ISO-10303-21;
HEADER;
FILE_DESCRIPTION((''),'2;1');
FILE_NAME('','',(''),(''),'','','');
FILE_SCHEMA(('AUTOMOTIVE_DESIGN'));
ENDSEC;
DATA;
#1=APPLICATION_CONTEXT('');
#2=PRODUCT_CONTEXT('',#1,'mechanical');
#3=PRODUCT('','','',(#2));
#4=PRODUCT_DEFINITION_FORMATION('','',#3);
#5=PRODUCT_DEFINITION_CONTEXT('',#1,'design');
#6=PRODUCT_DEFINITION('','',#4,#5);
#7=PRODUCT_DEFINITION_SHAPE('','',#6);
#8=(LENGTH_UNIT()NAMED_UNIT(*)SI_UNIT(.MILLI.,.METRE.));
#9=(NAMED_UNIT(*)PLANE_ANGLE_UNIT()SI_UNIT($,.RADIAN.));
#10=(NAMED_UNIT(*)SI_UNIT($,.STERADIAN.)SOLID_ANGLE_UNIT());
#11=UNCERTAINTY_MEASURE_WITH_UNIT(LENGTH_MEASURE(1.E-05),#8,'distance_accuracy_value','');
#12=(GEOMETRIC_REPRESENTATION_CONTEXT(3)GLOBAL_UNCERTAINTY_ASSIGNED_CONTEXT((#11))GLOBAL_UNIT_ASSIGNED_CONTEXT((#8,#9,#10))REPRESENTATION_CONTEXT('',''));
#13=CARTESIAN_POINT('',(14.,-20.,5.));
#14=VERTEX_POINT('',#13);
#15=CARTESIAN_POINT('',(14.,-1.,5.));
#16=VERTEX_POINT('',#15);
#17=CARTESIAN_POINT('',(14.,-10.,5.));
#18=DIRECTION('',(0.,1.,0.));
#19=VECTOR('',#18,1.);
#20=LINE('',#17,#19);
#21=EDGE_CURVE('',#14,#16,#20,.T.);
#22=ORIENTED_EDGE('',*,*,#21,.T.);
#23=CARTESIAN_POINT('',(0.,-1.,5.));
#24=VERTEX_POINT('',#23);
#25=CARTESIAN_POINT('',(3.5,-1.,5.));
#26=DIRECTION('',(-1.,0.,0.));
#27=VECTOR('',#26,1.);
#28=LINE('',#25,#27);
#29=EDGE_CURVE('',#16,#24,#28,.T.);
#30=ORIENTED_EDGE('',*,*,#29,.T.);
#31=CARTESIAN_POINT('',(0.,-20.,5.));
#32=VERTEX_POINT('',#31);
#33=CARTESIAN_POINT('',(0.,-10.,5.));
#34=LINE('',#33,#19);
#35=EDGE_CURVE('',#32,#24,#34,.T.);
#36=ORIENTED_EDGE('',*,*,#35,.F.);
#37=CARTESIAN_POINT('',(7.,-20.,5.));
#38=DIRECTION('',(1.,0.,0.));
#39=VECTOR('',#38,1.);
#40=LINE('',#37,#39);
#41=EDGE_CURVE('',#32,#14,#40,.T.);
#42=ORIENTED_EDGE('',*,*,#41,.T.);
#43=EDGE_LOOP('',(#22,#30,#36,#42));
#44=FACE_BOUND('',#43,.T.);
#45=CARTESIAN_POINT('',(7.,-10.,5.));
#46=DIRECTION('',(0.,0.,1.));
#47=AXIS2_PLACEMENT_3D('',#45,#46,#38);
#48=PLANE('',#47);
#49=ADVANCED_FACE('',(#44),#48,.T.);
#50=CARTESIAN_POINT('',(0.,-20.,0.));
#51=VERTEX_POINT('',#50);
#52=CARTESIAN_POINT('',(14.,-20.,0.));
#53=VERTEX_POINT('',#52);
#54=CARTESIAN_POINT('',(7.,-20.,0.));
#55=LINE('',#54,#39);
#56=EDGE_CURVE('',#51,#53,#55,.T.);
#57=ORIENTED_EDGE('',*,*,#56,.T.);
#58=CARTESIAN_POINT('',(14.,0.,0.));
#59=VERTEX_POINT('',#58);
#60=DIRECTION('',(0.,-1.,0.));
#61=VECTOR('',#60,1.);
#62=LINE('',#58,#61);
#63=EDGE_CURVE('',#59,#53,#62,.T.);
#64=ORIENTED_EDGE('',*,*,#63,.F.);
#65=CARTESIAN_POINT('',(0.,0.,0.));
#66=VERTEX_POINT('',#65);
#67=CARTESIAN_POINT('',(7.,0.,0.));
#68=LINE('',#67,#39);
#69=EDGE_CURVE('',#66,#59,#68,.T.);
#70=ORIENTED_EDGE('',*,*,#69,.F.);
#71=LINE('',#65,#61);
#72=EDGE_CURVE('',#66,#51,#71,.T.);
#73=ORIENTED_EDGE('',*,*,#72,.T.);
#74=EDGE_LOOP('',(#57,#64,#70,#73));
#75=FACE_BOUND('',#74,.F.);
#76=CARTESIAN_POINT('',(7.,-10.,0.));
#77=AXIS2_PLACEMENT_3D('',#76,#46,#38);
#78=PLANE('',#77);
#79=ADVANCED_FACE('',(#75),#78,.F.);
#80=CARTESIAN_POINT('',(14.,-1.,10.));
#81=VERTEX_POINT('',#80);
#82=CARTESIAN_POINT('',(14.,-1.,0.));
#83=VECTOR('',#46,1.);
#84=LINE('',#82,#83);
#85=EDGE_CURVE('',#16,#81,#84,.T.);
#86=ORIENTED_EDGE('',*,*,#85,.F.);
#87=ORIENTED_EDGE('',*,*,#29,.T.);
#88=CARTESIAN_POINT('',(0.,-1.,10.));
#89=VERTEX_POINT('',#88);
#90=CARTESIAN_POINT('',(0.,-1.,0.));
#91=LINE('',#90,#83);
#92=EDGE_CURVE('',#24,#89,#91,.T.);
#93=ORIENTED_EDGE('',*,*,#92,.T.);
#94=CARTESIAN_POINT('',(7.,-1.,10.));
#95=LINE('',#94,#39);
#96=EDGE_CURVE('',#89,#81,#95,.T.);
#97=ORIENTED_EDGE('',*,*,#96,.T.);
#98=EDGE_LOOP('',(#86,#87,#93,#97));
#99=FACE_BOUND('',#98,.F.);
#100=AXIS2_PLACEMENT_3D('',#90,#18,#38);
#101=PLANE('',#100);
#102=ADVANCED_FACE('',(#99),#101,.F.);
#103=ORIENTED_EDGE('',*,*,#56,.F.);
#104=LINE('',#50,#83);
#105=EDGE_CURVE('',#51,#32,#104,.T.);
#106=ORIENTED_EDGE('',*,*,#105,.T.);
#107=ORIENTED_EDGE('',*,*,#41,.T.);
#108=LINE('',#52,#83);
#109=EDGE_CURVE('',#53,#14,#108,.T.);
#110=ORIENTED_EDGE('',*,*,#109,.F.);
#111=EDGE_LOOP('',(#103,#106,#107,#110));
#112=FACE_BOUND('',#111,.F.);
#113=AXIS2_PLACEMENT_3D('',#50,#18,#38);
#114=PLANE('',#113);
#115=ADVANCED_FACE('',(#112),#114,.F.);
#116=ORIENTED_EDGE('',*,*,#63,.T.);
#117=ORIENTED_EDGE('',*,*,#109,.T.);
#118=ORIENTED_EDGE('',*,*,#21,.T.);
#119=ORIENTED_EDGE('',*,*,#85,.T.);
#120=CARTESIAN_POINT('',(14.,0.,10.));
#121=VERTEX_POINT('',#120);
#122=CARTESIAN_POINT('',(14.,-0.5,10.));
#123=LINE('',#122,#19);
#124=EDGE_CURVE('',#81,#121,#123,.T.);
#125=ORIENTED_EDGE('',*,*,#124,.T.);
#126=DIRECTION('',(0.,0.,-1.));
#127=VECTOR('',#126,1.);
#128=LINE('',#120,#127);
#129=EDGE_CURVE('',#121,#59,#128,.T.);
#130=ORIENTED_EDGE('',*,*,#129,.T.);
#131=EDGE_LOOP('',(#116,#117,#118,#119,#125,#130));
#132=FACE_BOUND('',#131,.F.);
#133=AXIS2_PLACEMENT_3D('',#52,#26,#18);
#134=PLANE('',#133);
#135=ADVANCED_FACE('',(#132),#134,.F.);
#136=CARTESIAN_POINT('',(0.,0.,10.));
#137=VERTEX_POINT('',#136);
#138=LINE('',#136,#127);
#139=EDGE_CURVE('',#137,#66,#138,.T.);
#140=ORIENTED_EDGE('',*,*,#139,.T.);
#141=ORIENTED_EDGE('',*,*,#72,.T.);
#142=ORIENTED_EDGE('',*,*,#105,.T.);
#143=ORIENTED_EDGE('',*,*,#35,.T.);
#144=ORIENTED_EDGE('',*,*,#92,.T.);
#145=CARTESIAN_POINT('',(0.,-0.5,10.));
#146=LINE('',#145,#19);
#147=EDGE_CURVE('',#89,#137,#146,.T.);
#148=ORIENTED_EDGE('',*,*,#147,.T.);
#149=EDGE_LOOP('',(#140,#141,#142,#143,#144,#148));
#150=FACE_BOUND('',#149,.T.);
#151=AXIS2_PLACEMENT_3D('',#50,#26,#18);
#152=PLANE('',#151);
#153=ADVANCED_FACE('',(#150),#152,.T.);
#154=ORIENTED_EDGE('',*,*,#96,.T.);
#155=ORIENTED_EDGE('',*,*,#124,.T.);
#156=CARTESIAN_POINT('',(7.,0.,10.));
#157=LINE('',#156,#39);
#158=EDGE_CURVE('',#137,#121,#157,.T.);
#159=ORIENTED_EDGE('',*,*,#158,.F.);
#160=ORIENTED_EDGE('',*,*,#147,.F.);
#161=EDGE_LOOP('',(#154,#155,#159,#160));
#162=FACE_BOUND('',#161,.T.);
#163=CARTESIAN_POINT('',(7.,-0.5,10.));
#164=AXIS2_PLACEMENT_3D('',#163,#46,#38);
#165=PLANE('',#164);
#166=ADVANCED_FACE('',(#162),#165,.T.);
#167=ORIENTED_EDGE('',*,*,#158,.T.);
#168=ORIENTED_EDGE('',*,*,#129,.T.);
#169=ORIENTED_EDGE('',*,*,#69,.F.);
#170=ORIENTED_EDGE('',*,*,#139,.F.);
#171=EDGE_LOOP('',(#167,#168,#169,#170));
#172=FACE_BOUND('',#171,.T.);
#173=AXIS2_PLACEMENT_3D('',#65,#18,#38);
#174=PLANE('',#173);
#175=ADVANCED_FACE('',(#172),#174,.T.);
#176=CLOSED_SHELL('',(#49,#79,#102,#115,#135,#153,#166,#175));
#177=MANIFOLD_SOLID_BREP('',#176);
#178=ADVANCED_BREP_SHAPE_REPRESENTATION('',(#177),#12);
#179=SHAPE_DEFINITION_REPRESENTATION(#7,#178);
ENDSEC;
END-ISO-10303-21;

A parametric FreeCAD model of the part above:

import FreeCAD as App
import Part
import Sketcher


def add_polygon(sketch, points):
    """Adds a closed chain of lines whose ends are joined by coincident constraints."""
    first, n = sketch.GeometryCount, len(points)
    for a, b in zip(points, points[1:] + points[:1]):
        sketch.addGeometry(Part.LineSegment(App.Vector(*a, 0), App.Vector(*b, 0)), False)
    for i in range(n):
        sketch.addConstraint(Sketcher.Constraint("Coincident", first + i, 2, first + (i + 1) % n, 1))

doc = App.newDocument("Part")
body = doc.addObject("PartDesign::Body", "Body")

sketch1 = body.newObject("Sketcher::SketchObject", "Sketch")
sketch1.AttachmentSupport = (doc.getObject("XY_Plane"), [""])
sketch1.MapMode = "FlatFace"
add_polygon(sketch1, [(0, 0), (0, -20), (14, -20), (14, 0)])
sketch1.addConstraint([
    Sketcher.Constraint("Vertical", 0),
    Sketcher.Constraint("Horizontal", 1),
    Sketcher.Constraint("Vertical", 2),
    Sketcher.Constraint("Horizontal", 3),
    Sketcher.Constraint("Coincident", 3, 2, -1, 1),
    Sketcher.Constraint("DistanceX", 1, 1, 1, 2, 14.0),
    Sketcher.Constraint("DistanceY", 0, 2, 0, 1, 20.0),
])
pad1 = body.newObject("PartDesign::Pad", "Pad")
pad1.Profile = sketch1
pad1.Length = 5

sketch2 = body.newObject("Sketcher::SketchObject", "Sketch001")
sketch2.AttachmentSupport = (doc.getObject("XY_Plane"), [""])
sketch2.MapMode = "FlatFace"
add_polygon(sketch2, [(0, 0), (0, -1), (14, -1), (14, 0)])
sketch2.addConstraint([
    Sketcher.Constraint("Vertical", 0),
    Sketcher.Constraint("Horizontal", 1),
    Sketcher.Constraint("Vertical", 2),
    Sketcher.Constraint("Horizontal", 3),
    Sketcher.Constraint("Coincident", 3, 2, -1, 1),
    Sketcher.Constraint("DistanceX", 1, 1, 1, 2, 14.0),
    Sketcher.Constraint("DistanceY", 0, 2, 0, 1, 1.0),
])
pad2 = body.newObject("PartDesign::Pad", "Pad001")
pad2.Profile = sketch2
pad2.Length = 10

doc.recompute()
